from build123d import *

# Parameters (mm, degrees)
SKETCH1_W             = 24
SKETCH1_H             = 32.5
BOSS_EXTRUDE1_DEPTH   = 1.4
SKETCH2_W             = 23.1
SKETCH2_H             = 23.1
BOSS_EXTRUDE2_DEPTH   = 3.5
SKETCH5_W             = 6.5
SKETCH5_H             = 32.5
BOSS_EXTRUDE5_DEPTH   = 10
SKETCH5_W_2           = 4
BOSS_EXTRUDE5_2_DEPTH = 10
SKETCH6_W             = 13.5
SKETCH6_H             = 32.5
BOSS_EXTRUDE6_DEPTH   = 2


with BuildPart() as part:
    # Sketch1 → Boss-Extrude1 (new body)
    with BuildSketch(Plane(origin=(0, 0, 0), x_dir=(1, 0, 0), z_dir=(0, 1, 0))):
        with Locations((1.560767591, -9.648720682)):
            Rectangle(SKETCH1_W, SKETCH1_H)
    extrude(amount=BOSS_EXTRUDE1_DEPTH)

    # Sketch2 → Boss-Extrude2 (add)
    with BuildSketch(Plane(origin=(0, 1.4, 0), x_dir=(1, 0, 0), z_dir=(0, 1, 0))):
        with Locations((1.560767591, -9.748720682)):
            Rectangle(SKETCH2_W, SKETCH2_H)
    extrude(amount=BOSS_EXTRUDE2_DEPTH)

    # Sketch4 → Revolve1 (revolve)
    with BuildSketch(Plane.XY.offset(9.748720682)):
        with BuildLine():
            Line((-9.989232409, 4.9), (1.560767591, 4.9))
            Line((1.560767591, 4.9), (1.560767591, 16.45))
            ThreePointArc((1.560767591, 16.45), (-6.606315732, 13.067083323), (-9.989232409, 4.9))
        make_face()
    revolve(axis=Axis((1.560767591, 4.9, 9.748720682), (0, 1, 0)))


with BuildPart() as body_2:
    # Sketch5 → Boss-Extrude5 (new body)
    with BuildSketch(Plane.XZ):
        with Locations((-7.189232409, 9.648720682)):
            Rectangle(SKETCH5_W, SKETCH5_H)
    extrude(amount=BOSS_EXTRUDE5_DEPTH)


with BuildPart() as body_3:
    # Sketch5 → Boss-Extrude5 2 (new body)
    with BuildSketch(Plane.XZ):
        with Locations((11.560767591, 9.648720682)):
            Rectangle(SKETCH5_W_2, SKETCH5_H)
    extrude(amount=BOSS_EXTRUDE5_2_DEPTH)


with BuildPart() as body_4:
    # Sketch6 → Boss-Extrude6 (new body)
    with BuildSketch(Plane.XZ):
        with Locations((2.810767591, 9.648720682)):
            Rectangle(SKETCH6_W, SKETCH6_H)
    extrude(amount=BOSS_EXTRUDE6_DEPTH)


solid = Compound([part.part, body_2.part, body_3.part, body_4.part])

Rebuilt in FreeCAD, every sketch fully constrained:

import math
import FreeCAD as App
import Part
import Sketcher


def add_polygon(sketch, points):
    """Adds a closed chain of lines whose ends are joined by coincident constraints."""
    first, n = sketch.GeometryCount, len(points)
    for a, b in zip(points, points[1:] + points[:1]):
        sketch.addGeometry(Part.LineSegment(App.Vector(*a, 0), App.Vector(*b, 0)), False)
    for i in range(n):
        sketch.addConstraint(Sketcher.Constraint("Coincident", first + i, 2, first + (i + 1) % n, 1))

doc = App.newDocument("Part")
body = doc.addObject("PartDesign::Body", "Body")

# Sketch on XZ plane
sketch1 = body.newObject("Sketcher::SketchObject", "Sketch")
sketch1.AttachmentSupport = (doc.getObject("XZ_Plane"), [""])
sketch1.MapMode = "FlatFace"
add_polygon(sketch1, [(-10.439232, -6.601279), (-10.439232, 25.898721), (13.560768, 25.898721), (13.560768, -6.601279)])  # lines 0-3
sketch1.addConstraint([
    Sketcher.Constraint("Vertical", 0),
    Sketcher.Constraint("Horizontal", 1),
    Sketcher.Constraint("Vertical", 2),
    Sketcher.Constraint("Horizontal", 3),
    Sketcher.Constraint("DistanceX", 1, 1, 1, 2, 24.0),
    Sketcher.Constraint("DistanceY", 0, 1, 0, 2, 32.5),
    Sketcher.Constraint("DistanceY", -1, 1, 0, 2, 25.898721),
    Sketcher.Constraint("DistanceX", 0, 2, -1, 1, 10.439232),
])
pad1 = body.newObject("PartDesign::Pad", "Pad")
pad1.Profile = sketch1
pad1.Length = 1.4
pad1.Reversed = True

# Sketch on XZ plane
sketch2 = body.newObject("Sketcher::SketchObject", "Sketch001")
sketch2.AttachmentSupport = (doc.getObject("XZ_Plane"), [""])
sketch2.MapMode = "FlatFace"
sketch2.AttachmentOffset = App.Placement(App.Vector(0, 0, -1.4), App.Rotation())
add_polygon(sketch2, [(-9.989232, -1.801279), (-9.989232, 21.298721), (13.110768, 21.298721), (13.110768, -1.801279)])  # lines 0-3
sketch2.addConstraint([
    Sketcher.Constraint("Vertical", 0),
    Sketcher.Constraint("Horizontal", 1),
    Sketcher.Constraint("Vertical", 2),
    Sketcher.Constraint("Horizontal", 3),
    Sketcher.Constraint("Equal", 3, 0),
    Sketcher.Constraint("DistanceX", 1, 1, 1, 2, 23.1),
    Sketcher.Constraint("DistanceY", -1, 1, 0, 2, 21.298721),
    Sketcher.Constraint("DistanceX", 0, 2, -1, 1, 9.989232),
])
pad2 = body.newObject("PartDesign::Pad", "Pad001")
pad2.Profile = sketch2
pad2.Length = 3.5
pad2.Reversed = True

# Sketch on XY plane
sketch3 = body.newObject("Sketcher::SketchObject", "Sketch002")
sketch3.AttachmentSupport = (doc.getObject("XY_Plane"), [""])
sketch3.MapMode = "FlatFace"
sketch3.AttachmentOffset = App.Placement(App.Vector(0, 0, 9.748721), App.Rotation())
sketch3.addGeometry([
    Part.LineSegment(App.Vector(-9.989232, 4.9, 0), App.Vector(1.560768, 4.9, 0)),
    Part.LineSegment(App.Vector(1.560768, 4.9, 0), App.Vector(1.560768, 16.45, 0)),
    Part.ArcOfCircle(Part.Circle(App.Vector(1.560768, 4.9, 0), App.Vector(0, 0, 1), 11.55), math.radians(90), math.radians(180)),
], False)
sketch3.addGeometry(Part.LineSegment(App.Vector(1.560768, 4.9, 0), App.Vector(1.560768, 16.45, 0)), True)  # axis
sketch3.addConstraint([
    Sketcher.Constraint("Coincident", 0, 2, 1, 1),
    Sketcher.Constraint("Coincident", 1, 2, 2, 1),
    Sketcher.Constraint("Coincident", 2, 2, 0, 1),
    Sketcher.Constraint("Horizontal", 0),
    Sketcher.Constraint("Vertical", 1),
    Sketcher.Constraint("Vertical", 3),
    Sketcher.Constraint("Coincident", 0, 2, 2, 3),
    Sketcher.Constraint("Coincident", 3, 1, 2, 3),
    Sketcher.Constraint("Equal", 1, 3),
    Sketcher.Constraint("Radius", 2, 11.55),
    Sketcher.Constraint("DistanceY", -1, 1, 2, 3, 4.9),
    Sketcher.Constraint("DistanceX", -1, 1, 2, 3, 1.560768),
])
revolution = body.newObject("PartDesign::Revolution", "Revolution")
revolution.Profile = sketch3
revolution.ReferenceAxis = (sketch3, ["Axis0"])
revolution.Angle = 360
body2 = doc.addObject("PartDesign::Body", "Body001")

# Sketch on XZ plane
sketch4 = body2.newObject("Sketcher::SketchObject", "Sketch003")
sketch4.AttachmentSupport = (doc.getObject("XZ_Plane001"), [""])
sketch4.MapMode = "FlatFace"
add_polygon(sketch4, [(-10.439232, 25.898721), (-10.439232, -6.601279), (-3.939232, -6.601279), (-3.939232, 25.898721)])  # lines 0-3
sketch4.addConstraint([
    Sketcher.Constraint("Vertical", 0),
    Sketcher.Constraint("Horizontal", 1),
    Sketcher.Constraint("Vertical", 2),
    Sketcher.Constraint("Horizontal", 3),
    Sketcher.Constraint("DistanceX", 1, 1, 1, 2, 6.5),
    Sketcher.Constraint("DistanceY", 0, 2, 0, 1, 32.5),
    Sketcher.Constraint("DistanceY", 0, 2, -1, 1, 6.601279),
    Sketcher.Constraint("DistanceX", 0, 2, -1, 1, 10.439232),
])
pad3 = body2.newObject("PartDesign::Pad", "Pad002")
pad3.Profile = sketch4
pad3.Length = 10
body3 = doc.addObject("PartDesign::Body", "Body002")

# Sketch on XZ plane
sketch5 = body3.newObject("Sketcher::SketchObject", "Sketch004")
sketch5.AttachmentSupport = (doc.getObject("XZ_Plane002"), [""])
sketch5.MapMode = "FlatFace"
add_polygon(sketch5, [(9.560768, 25.898721), (9.560768, -6.601279), (13.560768, -6.601279), (13.560768, 25.898721)])  # lines 0-3
sketch5.addConstraint([
    Sketcher.Constraint("Vertical", 0),
    Sketcher.Constraint("Horizontal", 1),
    Sketcher.Constraint("Vertical", 2),
    Sketcher.Constraint("Horizontal", 3),
    Sketcher.Constraint("DistanceX", 1, 1, 1, 2, 4.0),
    Sketcher.Constraint("DistanceY", 0, 2, 0, 1, 32.5),
    Sketcher.Constraint("DistanceY", 0, 2, -1, 1, 6.601279),
    Sketcher.Constraint("DistanceX", -1, 1, 0, 2, 9.560768),
])
pad4 = body3.newObject("PartDesign::Pad", "Pad003")
pad4.Profile = sketch5
pad4.Length = 10
body4 = doc.addObject("PartDesign::Body", "Body003")

# Sketch on XZ plane
sketch6 = body4.newObject("Sketcher::SketchObject", "Sketch005")
sketch6.AttachmentSupport = (doc.getObject("XZ_Plane003"), [""])
sketch6.MapMode = "FlatFace"
add_polygon(sketch6, [(-3.939232, 25.898721), (-3.939232, -6.601279), (9.560768, -6.601279), (9.560768, 25.898721)])  # lines 0-3
sketch6.addConstraint([
    Sketcher.Constraint("Vertical", 0),
    Sketcher.Constraint("Horizontal", 1),
    Sketcher.Constraint("Vertical", 2),
    Sketcher.Constraint("Horizontal", 3),
    Sketcher.Constraint("DistanceX", 1, 1, 1, 2, 13.5),
    Sketcher.Constraint("DistanceY", 0, 2, 0, 1, 32.5),
    Sketcher.Constraint("DistanceY", 0, 2, -1, 1, 6.601279),
    Sketcher.Constraint("DistanceX", 0, 2, -1, 1, 3.939232),
])
pad5 = body4.newObject("PartDesign::Pad", "Pad004")
pad5.Profile = sketch6
pad5.Length = 2

doc.recompute()
